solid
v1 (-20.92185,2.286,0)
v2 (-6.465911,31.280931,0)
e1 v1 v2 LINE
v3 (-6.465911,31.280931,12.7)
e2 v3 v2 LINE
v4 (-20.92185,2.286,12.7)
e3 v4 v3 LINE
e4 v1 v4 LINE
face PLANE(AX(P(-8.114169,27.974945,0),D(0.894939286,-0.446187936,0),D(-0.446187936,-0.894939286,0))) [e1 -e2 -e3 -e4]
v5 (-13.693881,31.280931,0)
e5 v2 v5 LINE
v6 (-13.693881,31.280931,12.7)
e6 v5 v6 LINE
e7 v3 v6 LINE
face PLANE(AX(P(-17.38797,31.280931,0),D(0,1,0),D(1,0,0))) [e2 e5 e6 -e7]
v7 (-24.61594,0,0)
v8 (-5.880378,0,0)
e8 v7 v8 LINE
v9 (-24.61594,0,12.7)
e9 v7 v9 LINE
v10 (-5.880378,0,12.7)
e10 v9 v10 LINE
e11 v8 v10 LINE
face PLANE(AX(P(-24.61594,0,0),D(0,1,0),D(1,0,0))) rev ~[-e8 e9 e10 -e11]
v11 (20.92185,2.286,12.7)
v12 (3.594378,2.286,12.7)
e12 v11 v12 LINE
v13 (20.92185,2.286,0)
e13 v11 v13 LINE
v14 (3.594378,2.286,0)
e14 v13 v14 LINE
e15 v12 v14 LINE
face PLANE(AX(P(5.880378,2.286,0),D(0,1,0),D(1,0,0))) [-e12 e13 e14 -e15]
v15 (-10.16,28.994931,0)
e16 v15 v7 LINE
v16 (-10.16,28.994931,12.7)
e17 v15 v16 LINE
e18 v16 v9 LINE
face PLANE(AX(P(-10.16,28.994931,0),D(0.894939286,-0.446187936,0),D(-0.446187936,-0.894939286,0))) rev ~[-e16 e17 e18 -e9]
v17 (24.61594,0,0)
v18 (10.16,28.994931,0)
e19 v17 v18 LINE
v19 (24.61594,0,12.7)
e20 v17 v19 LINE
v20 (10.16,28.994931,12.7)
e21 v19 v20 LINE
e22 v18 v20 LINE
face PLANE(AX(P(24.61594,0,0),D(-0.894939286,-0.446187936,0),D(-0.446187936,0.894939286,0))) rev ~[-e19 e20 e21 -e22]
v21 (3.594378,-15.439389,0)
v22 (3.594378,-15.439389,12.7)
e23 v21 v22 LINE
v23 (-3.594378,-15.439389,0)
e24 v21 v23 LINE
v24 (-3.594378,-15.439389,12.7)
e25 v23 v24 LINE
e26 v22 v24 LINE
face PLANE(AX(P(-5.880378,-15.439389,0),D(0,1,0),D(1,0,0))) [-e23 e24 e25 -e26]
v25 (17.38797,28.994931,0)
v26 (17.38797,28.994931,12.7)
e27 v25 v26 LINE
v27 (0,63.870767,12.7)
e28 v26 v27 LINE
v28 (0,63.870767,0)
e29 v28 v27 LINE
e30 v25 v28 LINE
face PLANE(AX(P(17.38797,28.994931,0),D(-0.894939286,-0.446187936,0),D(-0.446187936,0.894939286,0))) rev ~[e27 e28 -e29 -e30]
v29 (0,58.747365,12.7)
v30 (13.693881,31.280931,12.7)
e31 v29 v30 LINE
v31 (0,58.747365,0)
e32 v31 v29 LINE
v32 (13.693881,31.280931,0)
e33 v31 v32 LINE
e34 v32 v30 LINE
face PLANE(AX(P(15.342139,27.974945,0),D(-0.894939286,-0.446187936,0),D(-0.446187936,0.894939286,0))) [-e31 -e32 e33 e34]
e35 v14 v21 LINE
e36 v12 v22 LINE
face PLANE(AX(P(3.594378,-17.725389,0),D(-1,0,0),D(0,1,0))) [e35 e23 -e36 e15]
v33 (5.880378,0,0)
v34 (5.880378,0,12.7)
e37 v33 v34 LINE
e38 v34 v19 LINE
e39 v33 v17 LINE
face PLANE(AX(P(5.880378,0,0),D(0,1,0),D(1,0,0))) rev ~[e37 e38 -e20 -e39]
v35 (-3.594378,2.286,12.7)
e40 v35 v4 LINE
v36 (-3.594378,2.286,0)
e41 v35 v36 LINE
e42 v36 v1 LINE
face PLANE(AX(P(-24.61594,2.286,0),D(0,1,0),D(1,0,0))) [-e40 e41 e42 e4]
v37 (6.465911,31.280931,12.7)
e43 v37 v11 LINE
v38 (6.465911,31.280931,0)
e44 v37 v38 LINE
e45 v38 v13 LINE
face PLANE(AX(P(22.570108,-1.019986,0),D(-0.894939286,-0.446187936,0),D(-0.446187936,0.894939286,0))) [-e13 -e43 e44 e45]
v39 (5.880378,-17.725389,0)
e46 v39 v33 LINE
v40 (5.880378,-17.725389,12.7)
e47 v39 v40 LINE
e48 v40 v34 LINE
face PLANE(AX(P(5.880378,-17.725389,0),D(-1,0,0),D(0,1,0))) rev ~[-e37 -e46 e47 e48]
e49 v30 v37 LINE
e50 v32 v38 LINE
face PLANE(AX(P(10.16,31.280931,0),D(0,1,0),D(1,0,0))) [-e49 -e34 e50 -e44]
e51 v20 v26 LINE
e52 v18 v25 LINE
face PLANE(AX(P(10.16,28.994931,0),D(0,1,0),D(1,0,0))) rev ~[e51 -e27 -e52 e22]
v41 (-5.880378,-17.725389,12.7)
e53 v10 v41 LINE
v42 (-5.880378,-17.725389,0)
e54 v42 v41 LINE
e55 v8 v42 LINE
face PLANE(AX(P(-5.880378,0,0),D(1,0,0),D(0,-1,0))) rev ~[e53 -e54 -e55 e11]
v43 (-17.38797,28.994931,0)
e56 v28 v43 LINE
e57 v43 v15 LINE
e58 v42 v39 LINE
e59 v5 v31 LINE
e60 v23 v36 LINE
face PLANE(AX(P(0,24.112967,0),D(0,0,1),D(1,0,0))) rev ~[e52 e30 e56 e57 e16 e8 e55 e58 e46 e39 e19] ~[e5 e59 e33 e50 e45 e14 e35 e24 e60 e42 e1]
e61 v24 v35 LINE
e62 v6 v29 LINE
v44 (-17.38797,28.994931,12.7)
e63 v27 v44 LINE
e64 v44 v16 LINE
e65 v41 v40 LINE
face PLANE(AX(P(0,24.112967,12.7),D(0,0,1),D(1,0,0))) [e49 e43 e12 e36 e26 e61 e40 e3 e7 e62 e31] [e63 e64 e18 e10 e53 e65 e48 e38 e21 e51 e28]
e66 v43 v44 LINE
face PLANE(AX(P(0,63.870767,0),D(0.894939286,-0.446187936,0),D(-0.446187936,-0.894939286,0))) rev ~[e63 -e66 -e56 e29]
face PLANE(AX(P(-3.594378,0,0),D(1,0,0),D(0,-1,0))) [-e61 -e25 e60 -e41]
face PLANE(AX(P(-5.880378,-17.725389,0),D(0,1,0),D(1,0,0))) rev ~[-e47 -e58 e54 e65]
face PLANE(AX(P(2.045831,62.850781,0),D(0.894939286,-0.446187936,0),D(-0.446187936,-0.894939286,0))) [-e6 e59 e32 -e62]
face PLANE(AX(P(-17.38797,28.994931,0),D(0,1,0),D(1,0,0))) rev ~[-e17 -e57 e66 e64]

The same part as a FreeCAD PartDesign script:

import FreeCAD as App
import Part
import Sketcher
from FreeCAD import Vector
Q = App.Units.Quantity


def faces_at(feature, points):
    """Names of the faces that lie closest to the given points."""
    faces = feature.Shape.Faces
    near = lambda p: min(range(len(faces)), key=lambda i: faces[i].distToShape(Part.Vertex(*p))[0])
    return sorted({f"Face{near(p) + 1}" for p in points})


def add_polygon(sketch, points):
    """Adds a closed chain of lines whose ends are joined by coincident constraints."""
    first, n = sketch.GeometryCount, len(points)
    for a, b in zip(points, points[1:] + points[:1]):
        sketch.addGeometry(Part.LineSegment(App.Vector(*a, 0), App.Vector(*b, 0)), False)
    for i in range(n):
        sketch.addConstraint(Sketcher.Constraint("Coincident", first + i, 2, first + (i + 1) % n, 1))

doc = App.newDocument("Part")
body = doc.addObject("PartDesign::Body", "Body")

# Sketch on XY plane
sketch1 = body.newObject("Sketcher::SketchObject", "Sketch")
sketch1.AttachmentSupport = (doc.getObject("XY_Plane"), [""])
sketch1.MapMode = "FlatFace"
add_polygon(sketch1, [(24.61594, 0), (10.16, 28.994931), (17.38797, 28.994931), (0, 63.870767), (-17.38797, 28.994931), (-10.16, 28.994931), (-24.61594, 0), (-5.880378, 0), (-5.880378, -17.725389), (5.880378, -17.725389), (5.880378, 0)])  # lines 0-10
sketch1.addConstraint([
    Sketcher.Constraint("Horizontal", 1),
    Sketcher.Constraint("Horizontal", 4),
    Sketcher.Constraint("Horizontal", 6),
    Sketcher.Constraint("Vertical", 7),
    Sketcher.Constraint("Horizontal", 8),
    Sketcher.Constraint("Vertical", 9),
    Sketcher.Constraint("Horizontal", 10),
    Sketcher.Constraint("Symmetric", 6, 2, 9, 2, -1, 1),
    Sketcher.Constraint("Symmetric", 1, 2, 3, 2, -2),
    Sketcher.Constraint("Symmetric", 5, 2, 10, 2, -2),
    Sketcher.Constraint("PointOnObject", 2, 2, -2),
    Sketcher.Constraint("Parallel", 0, 2),
    Sketcher.Constraint("Parallel", 3, 5),
    Sketcher.Constraint("DistanceX", -1, 1, 0, 2, Q("0.4 in")),
    Sketcher.Constraint("DistanceX", 1, 1, 1, 2, 7.22797),
    Sketcher.Constraint("DistanceX", 6, 1, 6, 2, 18.735562),
    Sketcher.Constraint("DistanceY", 7, 2, 7, 1, 17.725389),
    Sketcher.Constraint("Distance", 0, 32.398769),
    Sketcher.Constraint("Distance", 2, 38.970058),
])
pad1 = body.newObject("PartDesign::Pad", "Pad")
pad1.Profile = sketch1
pad1.Length = Q("0.5 in")
doc.recompute()

thickness = body.newObject("PartDesign::Thickness", "Thickness")
thickness.Base = (pad1, faces_at(pad1, [(0, 23.073, 12.7), (0, 23.073, 0)]))
thickness.Value = Q("0.09 in")
thickness.Reversed = True
thickness.Join = "Intersection"

doc.recompute()
